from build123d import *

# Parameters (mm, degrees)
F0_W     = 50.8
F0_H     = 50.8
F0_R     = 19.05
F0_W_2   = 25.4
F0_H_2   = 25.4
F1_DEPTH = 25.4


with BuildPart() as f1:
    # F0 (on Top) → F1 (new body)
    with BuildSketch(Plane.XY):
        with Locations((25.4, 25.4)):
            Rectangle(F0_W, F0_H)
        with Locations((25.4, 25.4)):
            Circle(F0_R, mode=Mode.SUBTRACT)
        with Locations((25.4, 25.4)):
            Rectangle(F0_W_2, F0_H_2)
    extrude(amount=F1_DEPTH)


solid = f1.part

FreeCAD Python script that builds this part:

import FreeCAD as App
import Part
import Sketcher

V = App.Vector
Q = App.Units.Quantity

doc = App.newDocument("Part")
body = doc.addObject("PartDesign::Body", "Body")
body.AllowCompound = True

# Sketch on XY plane
sketch1 = body.newObject("Sketcher::SketchObject", "Sketch")
sketch1.AttachmentSupport = (doc.getObject("XY_Plane"), [""])
sketch1.MapMode = "FlatFace"
sketch1.addGeometry(Part.LineSegment(V(0, 50.8, 0), V(0, 0, 0)), False)
sketch1.addGeometry(Part.LineSegment(V(0, 0, 0), V(50.8, 0, 0)), False)
sketch1.addGeometry(Part.LineSegment(V(50.8, 0, 0), V(50.8, 50.8, 0)), False)
sketch1.addGeometry(Part.LineSegment(V(50.8, 50.8, 0), V(0, 50.8, 0)), False)
sketch1.addGeometry(Part.Circle(V(25.4, 25.4, 0), V(0, 0, 1), 19.05), False)
sketch1.addGeometry(Part.LineSegment(V(12.7, 38.1, 0), V(12.7, 12.7, 0)), False)
sketch1.addGeometry(Part.LineSegment(V(12.7, 12.7, 0), V(38.1, 12.7, 0)), False)
sketch1.addGeometry(Part.LineSegment(V(38.1, 12.7, 0), V(38.1, 38.1, 0)), False)
sketch1.addGeometry(Part.LineSegment(V(38.1, 38.1, 0), V(12.7, 38.1, 0)), False)
sketch1.addConstraint(Sketcher.Constraint("Coincident", 0, 2, 1, 1))
sketch1.addConstraint(Sketcher.Constraint("Coincident", 1, 2, 2, 1))
sketch1.addConstraint(Sketcher.Constraint("Coincident", 2, 2, 3, 1))
sketch1.addConstraint(Sketcher.Constraint("Coincident", 3, 2, 0, 1))
sketch1.addConstraint(Sketcher.Constraint("Coincident", 5, 2, 6, 1))
sketch1.addConstraint(Sketcher.Constraint("Coincident", 6, 2, 7, 1))
sketch1.addConstraint(Sketcher.Constraint("Coincident", 7, 2, 8, 1))
sketch1.addConstraint(Sketcher.Constraint("Coincident", 8, 2, 5, 1))
sketch1.addConstraint(Sketcher.Constraint("Vertical", 0))
sketch1.addConstraint(Sketcher.Constraint("Horizontal", 1))
sketch1.addConstraint(Sketcher.Constraint("Vertical", 2))
sketch1.addConstraint(Sketcher.Constraint("Horizontal", 3))
sketch1.addConstraint(Sketcher.Constraint("Vertical", 5))
sketch1.addConstraint(Sketcher.Constraint("Horizontal", 6))
sketch1.addConstraint(Sketcher.Constraint("Vertical", 7))
sketch1.addConstraint(Sketcher.Constraint("Horizontal", 8))
sketch1.addConstraint(Sketcher.Constraint("Coincident", 0, 2, -1, 1))
sketch1.addConstraint(Sketcher.Constraint("Equal", 3, 0))
sketch1.addConstraint(Sketcher.Constraint("Equal", 8, 5))
sketch1.addConstraint(Sketcher.Constraint("Diameter", 4, Q("1.5 in")))
sketch1.addConstraint(Sketcher.Constraint("DistanceX", 1, 1, 1, 2, Q("2 in")))
sketch1.addConstraint(Sketcher.Constraint("DistanceX", 6, 1, 6, 2, Q("1 in")))
sketch1.addConstraint(Sketcher.Constraint("DistanceX", -1, 1, 4, 3, Q("1 in")))
sketch1.addConstraint(Sketcher.Constraint("DistanceY", -1, 1, 4, 3, Q("1 in")))
sketch1.addConstraint(Sketcher.Constraint("DistanceX", -1, 1, 5, 2, Q("0.5 in")))
sketch1.addConstraint(Sketcher.Constraint("DistanceY", -1, 1, 5, 2, Q("0.5 in")))
pad1 = body.newObject("PartDesign::Pad", "Pad")
pad1.Profile = sketch1
pad1.Length = Q("1 in")

doc.recompute()
